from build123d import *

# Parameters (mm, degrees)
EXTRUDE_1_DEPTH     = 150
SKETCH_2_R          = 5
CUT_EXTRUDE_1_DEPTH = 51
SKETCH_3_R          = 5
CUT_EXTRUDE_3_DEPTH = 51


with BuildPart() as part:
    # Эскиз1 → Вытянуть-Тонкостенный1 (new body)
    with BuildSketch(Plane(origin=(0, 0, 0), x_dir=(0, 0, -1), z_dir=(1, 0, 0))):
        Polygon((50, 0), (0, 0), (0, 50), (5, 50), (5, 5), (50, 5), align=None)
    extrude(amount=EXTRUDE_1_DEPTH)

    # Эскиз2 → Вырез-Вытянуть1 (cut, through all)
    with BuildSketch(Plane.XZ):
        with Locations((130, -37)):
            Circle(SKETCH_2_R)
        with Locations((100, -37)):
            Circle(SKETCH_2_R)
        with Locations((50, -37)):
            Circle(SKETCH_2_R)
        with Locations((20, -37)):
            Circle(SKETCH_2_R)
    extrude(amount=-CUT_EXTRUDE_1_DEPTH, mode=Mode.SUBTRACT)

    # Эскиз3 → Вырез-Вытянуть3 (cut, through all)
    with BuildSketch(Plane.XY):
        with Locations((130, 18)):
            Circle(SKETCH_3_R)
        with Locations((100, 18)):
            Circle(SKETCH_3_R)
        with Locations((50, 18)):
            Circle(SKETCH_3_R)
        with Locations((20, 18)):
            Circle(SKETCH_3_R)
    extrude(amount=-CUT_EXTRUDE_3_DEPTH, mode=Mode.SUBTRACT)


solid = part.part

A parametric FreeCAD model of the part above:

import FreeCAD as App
import Part
import Sketcher

V = App.Vector

doc = App.newDocument("Part")
body = doc.addObject("PartDesign::Body", "Body")

# Sketch on YZ plane
sketch1 = body.newObject("Sketcher::SketchObject", "Sketch")
sketch1.AttachmentSupport = (doc.getObject("YZ_Plane"), [""])
sketch1.MapMode = "FlatFace"
sketch1.addGeometry(Part.LineSegment(V(0, 0, 0), V(0, -50, 0)), False)
sketch1.addGeometry(Part.LineSegment(V(0, -50, 0), V(5, -50, 0)), False)
sketch1.addGeometry(Part.LineSegment(V(5, -50, 0), V(5, -5, 0)), False)
sketch1.addGeometry(Part.LineSegment(V(5, -5, 0), V(50, -5, 0)), False)
sketch1.addGeometry(Part.LineSegment(V(50, -5, 0), V(50, 0, 0)), False)
sketch1.addGeometry(Part.LineSegment(V(50, 0, 0), V(0, 0, 0)), False)
sketch1.addConstraint(Sketcher.Constraint("Coincident", 0, 2, 1, 1))
sketch1.addConstraint(Sketcher.Constraint("Coincident", 1, 2, 2, 1))
sketch1.addConstraint(Sketcher.Constraint("Coincident", 2, 2, 3, 1))
sketch1.addConstraint(Sketcher.Constraint("Coincident", 3, 2, 4, 1))
sketch1.addConstraint(Sketcher.Constraint("Coincident", 4, 2, 5, 1))
sketch1.addConstraint(Sketcher.Constraint("Coincident", 5, 2, 0, 1))
sketch1.addConstraint(Sketcher.Constraint("Vertical", 0))
sketch1.addConstraint(Sketcher.Constraint("Horizontal", 1))
sketch1.addConstraint(Sketcher.Constraint("Vertical", 2))
sketch1.addConstraint(Sketcher.Constraint("Horizontal", 3))
sketch1.addConstraint(Sketcher.Constraint("Vertical", 4))
sketch1.addConstraint(Sketcher.Constraint("Horizontal", 5))
sketch1.addConstraint(Sketcher.Constraint("Coincident", 5, 2, -1, 1))
sketch1.addConstraint(Sketcher.Constraint("Equal", 5, 0))
sketch1.addConstraint(Sketcher.Constraint("Equal", 3, 2))
sketch1.addConstraint(Sketcher.Constraint("DistanceX", 1, 1, 1, 2, 5.0))
sketch1.addConstraint(Sketcher.Constraint("DistanceX", 3, 1, 3, 2, 45.0))
pad1 = body.newObject("PartDesign::Pad", "Pad")
pad1.Profile = sketch1
pad1.Length = 150

# Sketch on XZ plane
sketch2 = body.newObject("Sketcher::SketchObject", "Sketch001")
sketch2.AttachmentSupport = (doc.getObject("XZ_Plane"), [""])
sketch2.MapMode = "FlatFace"
sketch2.addGeometry(Part.Circle(V(130, -37, 0), V(0, 0, 1), 5), False)
sketch2.addGeometry(Part.Circle(V(100, -37, 0), V(0, 0, 1), 5), False)
sketch2.addGeometry(Part.Circle(V(50, -37, 0), V(0, 0, 1), 5), False)
sketch2.addGeometry(Part.Circle(V(20, -37, 0), V(0, 0, 1), 5), False)
sketch2.addConstraint(Sketcher.Constraint("Equal", 0, 1))
sketch2.addConstraint(Sketcher.Constraint("Equal", 1, 2))
sketch2.addConstraint(Sketcher.Constraint("Equal", 2, 3))
sketch2.addConstraint(Sketcher.Constraint("Horizontal", 0, 3, 1, 3))
sketch2.addConstraint(Sketcher.Constraint("Horizontal", 1, 3, 2, 3))
sketch2.addConstraint(Sketcher.Constraint("Horizontal", 2, 3, 3, 3))
sketch2.addConstraint(Sketcher.Constraint("Diameter", 0, 10.0))
sketch2.addConstraint(Sketcher.Constraint("DistanceX", -1, 1, 0, 3, 130.0))
sketch2.addConstraint(Sketcher.Constraint("DistanceY", 0, 3, -1, 1, 37.0))
sketch2.addConstraint(Sketcher.Constraint("DistanceX", -1, 1, 1, 3, 100.0))
sketch2.addConstraint(Sketcher.Constraint("DistanceX", -1, 1, 2, 3, 50.0))
sketch2.addConstraint(Sketcher.Constraint("DistanceX", -1, 1, 3, 3, 20.0))
pocket1 = body.newObject("PartDesign::Pocket", "Pocket")
pocket1.Profile = sketch2
pocket1.Type = "ThroughAll"

# Sketch on XY plane
sketch3 = body.newObject("Sketcher::SketchObject", "Sketch002")
sketch3.AttachmentSupport = (doc.getObject("XY_Plane"), [""])
sketch3.MapMode = "FlatFace"
sketch3.addGeometry(Part.Circle(V(130, 18, 0), V(0, 0, 1), 5), False)
sketch3.addGeometry(Part.Circle(V(100, 18, 0), V(0, 0, 1), 5), False)
sketch3.addGeometry(Part.Circle(V(50, 18, 0), V(0, 0, 1), 5), False)
sketch3.addGeometry(Part.Circle(V(20, 18, 0), V(0, 0, 1), 5), False)
sketch3.addConstraint(Sketcher.Constraint("Equal", 0, 1))
sketch3.addConstraint(Sketcher.Constraint("Equal", 1, 2))
sketch3.addConstraint(Sketcher.Constraint("Equal", 2, 3))
sketch3.addConstraint(Sketcher.Constraint("Horizontal", 0, 3, 1, 3))
sketch3.addConstraint(Sketcher.Constraint("Horizontal", 1, 3, 2, 3))
sketch3.addConstraint(Sketcher.Constraint("Horizontal", 2, 3, 3, 3))
sketch3.addConstraint(Sketcher.Constraint("Diameter", 0, 10.0))
sketch3.addConstraint(Sketcher.Constraint("DistanceX", -1, 1, 0, 3, 130.0))
sketch3.addConstraint(Sketcher.Constraint("DistanceY", -1, 1, 0, 3, 18.0))
sketch3.addConstraint(Sketcher.Constraint("DistanceX", -1, 1, 1, 3, 100.0))
sketch3.addConstraint(Sketcher.Constraint("DistanceX", -1, 1, 2, 3, 50.0))
sketch3.addConstraint(Sketcher.Constraint("DistanceX", -1, 1, 3, 3, 20.0))
pocket2 = body.newObject("PartDesign::Pocket", "Pocket001")
pocket2.Profile = sketch3
pocket2.Type = "ThroughAll"

doc.recompute()
